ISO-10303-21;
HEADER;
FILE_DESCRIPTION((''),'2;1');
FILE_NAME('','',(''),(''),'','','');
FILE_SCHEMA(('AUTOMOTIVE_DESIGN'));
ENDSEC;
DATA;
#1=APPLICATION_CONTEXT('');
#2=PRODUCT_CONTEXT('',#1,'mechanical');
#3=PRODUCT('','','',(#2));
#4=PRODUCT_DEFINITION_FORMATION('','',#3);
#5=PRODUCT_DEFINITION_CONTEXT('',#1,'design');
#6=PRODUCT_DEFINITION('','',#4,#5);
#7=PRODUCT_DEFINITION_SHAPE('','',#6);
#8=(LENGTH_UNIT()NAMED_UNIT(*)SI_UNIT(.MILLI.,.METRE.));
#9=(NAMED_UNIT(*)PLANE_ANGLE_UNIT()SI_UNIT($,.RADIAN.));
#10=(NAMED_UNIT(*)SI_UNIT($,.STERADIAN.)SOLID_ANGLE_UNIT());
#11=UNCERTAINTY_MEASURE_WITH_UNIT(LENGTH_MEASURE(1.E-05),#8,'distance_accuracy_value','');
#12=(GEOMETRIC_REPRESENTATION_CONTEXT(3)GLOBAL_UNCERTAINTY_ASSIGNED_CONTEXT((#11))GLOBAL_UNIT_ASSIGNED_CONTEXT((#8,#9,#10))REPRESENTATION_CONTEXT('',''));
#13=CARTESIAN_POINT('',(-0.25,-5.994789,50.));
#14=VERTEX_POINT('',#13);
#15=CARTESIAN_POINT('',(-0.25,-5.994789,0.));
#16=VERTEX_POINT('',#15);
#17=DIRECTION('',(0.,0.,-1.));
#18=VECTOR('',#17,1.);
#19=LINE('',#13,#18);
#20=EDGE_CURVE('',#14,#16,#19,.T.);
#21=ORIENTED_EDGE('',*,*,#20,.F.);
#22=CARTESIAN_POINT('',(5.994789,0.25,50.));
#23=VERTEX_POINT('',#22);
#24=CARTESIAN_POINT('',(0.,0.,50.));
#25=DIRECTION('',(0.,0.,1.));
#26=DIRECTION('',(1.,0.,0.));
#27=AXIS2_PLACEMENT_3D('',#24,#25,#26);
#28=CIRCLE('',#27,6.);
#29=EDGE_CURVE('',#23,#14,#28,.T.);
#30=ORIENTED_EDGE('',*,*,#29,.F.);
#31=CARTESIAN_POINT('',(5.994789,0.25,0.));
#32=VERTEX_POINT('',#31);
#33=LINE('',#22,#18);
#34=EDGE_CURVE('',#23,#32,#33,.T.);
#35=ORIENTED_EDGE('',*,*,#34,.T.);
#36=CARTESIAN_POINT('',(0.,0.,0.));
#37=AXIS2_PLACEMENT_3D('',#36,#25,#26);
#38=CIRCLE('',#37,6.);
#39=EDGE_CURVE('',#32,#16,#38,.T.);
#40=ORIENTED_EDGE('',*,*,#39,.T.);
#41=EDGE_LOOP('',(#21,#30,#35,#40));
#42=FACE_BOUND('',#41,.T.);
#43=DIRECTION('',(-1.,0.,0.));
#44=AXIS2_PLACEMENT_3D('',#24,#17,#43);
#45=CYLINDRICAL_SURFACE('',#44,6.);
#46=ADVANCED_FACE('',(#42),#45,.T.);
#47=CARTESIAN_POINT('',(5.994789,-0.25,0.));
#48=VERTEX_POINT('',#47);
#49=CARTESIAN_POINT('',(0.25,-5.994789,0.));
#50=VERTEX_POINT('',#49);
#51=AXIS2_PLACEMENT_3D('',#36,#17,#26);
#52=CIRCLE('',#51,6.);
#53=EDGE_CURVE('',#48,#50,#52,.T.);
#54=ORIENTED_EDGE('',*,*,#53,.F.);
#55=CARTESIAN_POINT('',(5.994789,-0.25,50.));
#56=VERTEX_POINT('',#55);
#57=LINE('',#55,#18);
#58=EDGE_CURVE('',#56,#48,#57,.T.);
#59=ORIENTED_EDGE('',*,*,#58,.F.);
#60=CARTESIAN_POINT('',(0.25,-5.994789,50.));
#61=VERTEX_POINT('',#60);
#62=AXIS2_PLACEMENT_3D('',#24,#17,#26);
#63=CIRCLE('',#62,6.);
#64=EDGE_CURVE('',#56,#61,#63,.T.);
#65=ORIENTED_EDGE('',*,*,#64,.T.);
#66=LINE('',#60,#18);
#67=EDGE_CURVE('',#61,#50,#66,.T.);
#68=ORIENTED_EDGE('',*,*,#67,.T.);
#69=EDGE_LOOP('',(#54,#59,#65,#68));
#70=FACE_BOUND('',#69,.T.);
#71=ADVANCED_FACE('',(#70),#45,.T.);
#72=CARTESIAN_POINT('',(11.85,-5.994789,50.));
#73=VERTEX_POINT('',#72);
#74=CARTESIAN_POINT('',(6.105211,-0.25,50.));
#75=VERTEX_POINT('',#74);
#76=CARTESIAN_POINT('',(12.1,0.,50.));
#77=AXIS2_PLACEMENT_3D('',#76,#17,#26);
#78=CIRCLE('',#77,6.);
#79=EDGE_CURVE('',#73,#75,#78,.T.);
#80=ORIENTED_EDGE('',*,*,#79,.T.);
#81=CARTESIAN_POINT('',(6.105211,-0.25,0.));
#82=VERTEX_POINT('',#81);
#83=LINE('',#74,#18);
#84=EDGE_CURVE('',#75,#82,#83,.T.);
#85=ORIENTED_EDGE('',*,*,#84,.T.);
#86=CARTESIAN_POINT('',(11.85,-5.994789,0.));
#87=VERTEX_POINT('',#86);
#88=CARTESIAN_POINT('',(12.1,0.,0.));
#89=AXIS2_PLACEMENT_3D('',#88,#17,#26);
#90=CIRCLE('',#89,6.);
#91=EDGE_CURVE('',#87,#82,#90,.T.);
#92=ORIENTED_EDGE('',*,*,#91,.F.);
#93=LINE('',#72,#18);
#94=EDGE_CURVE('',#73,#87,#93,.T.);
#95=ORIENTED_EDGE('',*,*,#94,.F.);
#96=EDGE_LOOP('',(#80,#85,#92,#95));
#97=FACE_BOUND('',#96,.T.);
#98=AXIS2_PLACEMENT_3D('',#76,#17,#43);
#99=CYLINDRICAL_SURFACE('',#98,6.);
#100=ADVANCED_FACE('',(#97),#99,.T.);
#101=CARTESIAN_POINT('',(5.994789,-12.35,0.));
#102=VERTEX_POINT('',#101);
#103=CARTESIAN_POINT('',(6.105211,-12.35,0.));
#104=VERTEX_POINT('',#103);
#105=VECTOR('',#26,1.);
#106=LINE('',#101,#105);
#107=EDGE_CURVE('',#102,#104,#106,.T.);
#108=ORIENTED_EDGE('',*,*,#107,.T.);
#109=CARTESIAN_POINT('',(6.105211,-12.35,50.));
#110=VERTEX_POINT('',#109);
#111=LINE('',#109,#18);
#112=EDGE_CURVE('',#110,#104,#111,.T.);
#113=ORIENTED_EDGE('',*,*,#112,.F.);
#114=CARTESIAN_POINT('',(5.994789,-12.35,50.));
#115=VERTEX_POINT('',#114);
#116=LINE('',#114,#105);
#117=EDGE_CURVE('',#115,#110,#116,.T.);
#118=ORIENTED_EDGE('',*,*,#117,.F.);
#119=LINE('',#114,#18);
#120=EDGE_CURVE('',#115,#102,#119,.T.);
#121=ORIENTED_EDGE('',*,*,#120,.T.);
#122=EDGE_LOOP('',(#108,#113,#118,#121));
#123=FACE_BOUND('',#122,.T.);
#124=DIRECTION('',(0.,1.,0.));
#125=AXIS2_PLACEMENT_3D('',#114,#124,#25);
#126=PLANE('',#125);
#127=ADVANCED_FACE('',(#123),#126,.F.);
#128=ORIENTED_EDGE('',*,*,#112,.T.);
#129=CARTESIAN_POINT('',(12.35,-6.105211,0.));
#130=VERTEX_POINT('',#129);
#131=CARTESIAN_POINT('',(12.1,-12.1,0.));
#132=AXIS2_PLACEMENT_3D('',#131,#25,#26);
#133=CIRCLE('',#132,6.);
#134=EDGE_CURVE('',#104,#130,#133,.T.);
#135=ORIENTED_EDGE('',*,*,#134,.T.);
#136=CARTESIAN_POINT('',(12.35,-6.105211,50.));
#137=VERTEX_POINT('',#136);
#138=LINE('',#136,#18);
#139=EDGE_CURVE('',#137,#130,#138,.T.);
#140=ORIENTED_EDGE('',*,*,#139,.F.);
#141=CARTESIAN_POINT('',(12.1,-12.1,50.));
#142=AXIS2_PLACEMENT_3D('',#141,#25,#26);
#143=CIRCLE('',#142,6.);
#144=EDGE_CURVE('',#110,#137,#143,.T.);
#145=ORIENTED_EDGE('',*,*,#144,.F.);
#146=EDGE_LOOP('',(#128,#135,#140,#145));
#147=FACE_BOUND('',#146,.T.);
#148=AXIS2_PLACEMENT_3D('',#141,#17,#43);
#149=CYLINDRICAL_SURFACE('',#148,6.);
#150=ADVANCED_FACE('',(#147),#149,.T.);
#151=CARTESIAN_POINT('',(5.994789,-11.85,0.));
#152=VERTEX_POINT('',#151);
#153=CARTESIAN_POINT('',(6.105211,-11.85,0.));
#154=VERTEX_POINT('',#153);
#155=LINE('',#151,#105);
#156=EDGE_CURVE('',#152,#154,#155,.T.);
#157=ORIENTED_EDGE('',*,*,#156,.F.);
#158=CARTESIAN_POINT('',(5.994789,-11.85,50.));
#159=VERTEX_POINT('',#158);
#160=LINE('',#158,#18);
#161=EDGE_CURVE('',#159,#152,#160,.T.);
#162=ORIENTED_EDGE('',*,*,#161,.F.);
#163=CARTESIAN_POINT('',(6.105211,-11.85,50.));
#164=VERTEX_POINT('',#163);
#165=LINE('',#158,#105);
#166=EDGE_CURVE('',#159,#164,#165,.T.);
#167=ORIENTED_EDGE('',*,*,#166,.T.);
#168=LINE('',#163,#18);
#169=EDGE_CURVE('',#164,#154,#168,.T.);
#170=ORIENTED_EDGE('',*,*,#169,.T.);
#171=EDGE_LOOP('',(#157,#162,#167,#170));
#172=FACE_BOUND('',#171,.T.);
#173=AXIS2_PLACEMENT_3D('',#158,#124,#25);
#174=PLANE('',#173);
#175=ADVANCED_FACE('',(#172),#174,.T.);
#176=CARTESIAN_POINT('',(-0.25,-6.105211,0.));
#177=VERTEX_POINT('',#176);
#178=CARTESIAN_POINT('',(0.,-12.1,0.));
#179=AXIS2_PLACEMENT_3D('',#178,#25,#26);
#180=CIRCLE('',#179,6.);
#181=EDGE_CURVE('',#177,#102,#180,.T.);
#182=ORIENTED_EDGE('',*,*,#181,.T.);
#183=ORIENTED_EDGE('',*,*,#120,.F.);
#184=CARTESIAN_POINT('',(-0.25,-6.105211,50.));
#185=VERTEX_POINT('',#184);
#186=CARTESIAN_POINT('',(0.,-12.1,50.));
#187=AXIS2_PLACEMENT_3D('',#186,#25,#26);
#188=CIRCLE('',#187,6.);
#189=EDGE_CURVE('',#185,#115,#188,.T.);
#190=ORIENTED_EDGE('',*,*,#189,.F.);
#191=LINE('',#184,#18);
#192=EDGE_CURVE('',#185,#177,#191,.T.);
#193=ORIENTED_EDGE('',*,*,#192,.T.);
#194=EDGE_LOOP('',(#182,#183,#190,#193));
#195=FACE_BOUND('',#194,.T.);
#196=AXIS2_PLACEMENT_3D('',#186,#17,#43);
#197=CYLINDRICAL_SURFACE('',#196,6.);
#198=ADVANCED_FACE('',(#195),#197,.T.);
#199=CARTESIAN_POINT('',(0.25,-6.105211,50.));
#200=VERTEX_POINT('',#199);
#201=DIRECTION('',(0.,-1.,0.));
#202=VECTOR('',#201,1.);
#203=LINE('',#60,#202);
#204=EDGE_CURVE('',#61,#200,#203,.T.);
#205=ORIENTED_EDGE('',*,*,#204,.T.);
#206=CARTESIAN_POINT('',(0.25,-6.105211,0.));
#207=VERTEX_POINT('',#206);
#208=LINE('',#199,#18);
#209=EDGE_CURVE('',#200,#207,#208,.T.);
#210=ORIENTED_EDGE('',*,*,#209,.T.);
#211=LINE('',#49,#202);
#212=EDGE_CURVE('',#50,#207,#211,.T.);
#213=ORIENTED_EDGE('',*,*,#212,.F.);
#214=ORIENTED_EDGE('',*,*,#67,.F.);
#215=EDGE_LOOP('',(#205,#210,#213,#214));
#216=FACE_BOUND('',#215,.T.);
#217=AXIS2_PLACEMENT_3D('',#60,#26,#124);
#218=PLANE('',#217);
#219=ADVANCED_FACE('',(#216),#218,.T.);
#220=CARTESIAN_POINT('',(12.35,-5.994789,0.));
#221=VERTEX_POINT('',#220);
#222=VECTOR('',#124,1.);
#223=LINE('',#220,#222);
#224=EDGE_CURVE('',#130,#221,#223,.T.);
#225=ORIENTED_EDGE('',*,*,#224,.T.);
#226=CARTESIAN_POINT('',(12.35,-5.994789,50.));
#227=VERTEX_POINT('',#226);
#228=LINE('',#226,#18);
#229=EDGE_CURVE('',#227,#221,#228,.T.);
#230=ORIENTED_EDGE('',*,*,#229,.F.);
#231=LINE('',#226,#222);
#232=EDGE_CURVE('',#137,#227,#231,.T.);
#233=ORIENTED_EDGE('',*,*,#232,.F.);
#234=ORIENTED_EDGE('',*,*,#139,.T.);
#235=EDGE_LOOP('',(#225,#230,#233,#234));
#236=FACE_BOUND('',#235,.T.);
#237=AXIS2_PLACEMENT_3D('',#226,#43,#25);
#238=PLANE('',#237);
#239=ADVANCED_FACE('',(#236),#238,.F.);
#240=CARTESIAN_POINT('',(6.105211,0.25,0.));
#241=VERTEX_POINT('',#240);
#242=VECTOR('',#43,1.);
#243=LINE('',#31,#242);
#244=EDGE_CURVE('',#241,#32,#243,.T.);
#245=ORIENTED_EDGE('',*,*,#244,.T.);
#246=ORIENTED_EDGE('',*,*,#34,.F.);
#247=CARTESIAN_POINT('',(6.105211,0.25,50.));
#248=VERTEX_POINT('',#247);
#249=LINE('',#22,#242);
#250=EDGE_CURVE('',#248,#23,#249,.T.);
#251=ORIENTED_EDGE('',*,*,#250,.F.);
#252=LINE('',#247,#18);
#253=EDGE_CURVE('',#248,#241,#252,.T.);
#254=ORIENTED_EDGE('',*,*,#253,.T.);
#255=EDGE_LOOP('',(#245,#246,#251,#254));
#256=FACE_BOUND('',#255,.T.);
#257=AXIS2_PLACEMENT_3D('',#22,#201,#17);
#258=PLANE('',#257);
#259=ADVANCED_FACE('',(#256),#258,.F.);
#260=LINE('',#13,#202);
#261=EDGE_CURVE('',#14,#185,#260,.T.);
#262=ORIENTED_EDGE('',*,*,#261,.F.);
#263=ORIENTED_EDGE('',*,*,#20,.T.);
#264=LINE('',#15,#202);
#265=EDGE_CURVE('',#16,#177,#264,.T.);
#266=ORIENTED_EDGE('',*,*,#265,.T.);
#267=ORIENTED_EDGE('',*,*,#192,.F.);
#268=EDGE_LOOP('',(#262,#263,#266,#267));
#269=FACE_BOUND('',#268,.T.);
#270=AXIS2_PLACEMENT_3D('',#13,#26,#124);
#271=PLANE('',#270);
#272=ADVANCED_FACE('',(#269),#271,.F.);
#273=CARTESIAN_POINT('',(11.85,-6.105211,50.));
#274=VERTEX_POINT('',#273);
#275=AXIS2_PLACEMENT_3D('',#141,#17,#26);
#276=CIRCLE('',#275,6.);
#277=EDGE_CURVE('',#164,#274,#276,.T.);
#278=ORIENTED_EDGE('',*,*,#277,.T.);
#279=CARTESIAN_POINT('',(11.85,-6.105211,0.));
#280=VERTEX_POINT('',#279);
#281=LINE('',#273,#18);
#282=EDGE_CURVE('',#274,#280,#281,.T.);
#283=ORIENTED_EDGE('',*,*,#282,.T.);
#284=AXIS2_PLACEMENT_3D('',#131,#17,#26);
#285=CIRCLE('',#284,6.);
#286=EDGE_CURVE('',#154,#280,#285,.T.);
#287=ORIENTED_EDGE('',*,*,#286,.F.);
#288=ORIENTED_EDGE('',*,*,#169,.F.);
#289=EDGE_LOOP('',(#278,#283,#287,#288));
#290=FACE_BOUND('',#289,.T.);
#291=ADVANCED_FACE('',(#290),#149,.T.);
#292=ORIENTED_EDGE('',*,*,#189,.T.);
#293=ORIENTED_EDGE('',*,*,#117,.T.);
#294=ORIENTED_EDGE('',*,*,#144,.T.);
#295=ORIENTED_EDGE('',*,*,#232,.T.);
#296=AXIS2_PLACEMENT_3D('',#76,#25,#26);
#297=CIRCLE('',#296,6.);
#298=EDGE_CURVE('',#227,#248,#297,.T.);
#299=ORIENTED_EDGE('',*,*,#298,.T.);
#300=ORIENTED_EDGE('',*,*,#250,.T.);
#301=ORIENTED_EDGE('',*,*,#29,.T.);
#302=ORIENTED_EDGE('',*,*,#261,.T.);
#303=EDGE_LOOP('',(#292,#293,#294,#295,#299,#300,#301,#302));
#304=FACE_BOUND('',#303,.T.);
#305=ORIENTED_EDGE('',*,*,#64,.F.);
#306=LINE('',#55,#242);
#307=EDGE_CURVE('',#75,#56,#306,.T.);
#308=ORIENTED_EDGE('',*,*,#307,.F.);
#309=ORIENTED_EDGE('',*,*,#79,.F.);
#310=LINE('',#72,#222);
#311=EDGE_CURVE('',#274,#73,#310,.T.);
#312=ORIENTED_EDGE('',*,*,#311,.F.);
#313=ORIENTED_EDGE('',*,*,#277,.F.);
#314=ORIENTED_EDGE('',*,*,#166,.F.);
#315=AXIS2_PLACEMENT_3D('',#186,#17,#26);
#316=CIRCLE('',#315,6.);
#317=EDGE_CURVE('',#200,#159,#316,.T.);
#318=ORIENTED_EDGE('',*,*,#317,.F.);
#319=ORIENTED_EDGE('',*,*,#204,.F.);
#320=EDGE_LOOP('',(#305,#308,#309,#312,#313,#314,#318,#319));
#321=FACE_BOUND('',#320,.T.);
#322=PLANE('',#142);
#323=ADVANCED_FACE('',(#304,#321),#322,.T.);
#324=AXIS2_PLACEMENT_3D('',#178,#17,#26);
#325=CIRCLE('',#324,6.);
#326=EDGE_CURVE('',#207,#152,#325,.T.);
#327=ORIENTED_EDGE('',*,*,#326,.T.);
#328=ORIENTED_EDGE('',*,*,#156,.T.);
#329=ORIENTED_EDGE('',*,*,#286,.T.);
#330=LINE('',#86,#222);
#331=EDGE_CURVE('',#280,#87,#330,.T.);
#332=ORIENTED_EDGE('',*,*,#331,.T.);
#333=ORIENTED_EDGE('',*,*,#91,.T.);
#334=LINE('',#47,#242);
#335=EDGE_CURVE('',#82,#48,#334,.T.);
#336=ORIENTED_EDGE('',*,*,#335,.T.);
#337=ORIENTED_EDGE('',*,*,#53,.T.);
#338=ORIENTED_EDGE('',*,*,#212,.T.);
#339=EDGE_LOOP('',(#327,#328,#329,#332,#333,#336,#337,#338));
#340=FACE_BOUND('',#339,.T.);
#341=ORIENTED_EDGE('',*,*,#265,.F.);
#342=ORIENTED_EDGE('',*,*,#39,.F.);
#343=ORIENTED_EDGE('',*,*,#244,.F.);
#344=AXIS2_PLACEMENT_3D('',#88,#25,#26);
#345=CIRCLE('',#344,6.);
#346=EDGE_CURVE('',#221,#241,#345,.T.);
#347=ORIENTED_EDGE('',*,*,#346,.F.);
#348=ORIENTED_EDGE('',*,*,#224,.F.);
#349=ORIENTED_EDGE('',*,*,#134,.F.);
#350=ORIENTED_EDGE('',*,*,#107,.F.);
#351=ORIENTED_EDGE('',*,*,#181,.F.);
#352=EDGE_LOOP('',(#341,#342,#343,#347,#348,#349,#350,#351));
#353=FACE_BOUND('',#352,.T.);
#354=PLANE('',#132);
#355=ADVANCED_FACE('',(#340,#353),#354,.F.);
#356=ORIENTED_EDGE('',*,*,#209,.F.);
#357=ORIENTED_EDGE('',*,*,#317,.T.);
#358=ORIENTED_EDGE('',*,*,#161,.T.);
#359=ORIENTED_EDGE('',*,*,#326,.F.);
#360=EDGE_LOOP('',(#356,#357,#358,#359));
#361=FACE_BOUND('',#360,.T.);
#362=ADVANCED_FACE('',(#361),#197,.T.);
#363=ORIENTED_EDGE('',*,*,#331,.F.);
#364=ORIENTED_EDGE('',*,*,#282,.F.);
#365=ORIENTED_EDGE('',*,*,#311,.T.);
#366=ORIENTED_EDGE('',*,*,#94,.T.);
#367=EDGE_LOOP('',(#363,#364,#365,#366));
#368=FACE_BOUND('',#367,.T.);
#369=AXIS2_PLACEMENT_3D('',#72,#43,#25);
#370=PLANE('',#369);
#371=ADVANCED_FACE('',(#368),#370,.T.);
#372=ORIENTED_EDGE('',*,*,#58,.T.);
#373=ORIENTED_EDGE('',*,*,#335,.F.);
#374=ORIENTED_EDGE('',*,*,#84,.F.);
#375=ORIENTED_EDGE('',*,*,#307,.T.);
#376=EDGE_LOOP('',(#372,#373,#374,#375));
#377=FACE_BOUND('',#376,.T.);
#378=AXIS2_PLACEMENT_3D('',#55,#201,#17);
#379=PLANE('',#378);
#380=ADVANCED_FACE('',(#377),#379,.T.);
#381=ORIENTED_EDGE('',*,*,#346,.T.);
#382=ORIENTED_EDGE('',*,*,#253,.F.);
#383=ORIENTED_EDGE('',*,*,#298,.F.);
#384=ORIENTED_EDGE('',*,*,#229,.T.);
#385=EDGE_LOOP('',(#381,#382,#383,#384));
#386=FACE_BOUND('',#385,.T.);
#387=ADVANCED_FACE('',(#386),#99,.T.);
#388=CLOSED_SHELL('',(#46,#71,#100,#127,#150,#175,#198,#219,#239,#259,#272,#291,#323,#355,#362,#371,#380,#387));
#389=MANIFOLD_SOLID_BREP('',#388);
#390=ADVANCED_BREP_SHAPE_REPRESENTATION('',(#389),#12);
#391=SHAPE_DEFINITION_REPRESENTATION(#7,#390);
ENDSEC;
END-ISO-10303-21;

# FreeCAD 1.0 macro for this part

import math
import FreeCAD as App
import Part
import Sketcher
from FreeCAD import Vector
Q = App.Units.Quantity

doc = App.newDocument("Part")
body = doc.addObject("PartDesign::Body", "Body")

sketch1 = body.newObject("Sketcher::SketchObject", "Sketch")
sketch1.AttachmentSupport = (doc.getObject("XY_Plane"), [""])
sketch1.MapMode = "FlatFace"
sketch1.addGeometry(Part.LineSegment(Vector(6.11, 0.25, 0), Vector(5.99, 0.25, 0)), False)
sketch1.addGeometry(Part.ArcOfCircle(Part.Circle(Vector(0, 0, 0), Vector(0, 0, 1), 6), math.radians(2), math.radians(268)), False)
sketch1.addGeometry(Part.LineSegment(Vector(-0.25, -5.99, 0), Vector(-0.25, -6.11, 0)), False)
sketch1.addGeometry(Part.ArcOfCircle(Part.Circle(Vector(0, -12.1, 0), Vector(0, 0, 1), 6), math.radians(92), math.radians(358)), False)
sketch1.addGeometry(Part.LineSegment(Vector(5.99, -12.35, 0), Vector(6.11, -12.35, 0)), False)
sketch1.addGeometry(Part.ArcOfCircle(Part.Circle(Vector(12.1, -12.1, 0), Vector(0, 0, 1), 6), math.radians(-178), math.radians(88)), False)
sketch1.addGeometry(Part.LineSegment(Vector(12.35, -6.11, 0), Vector(12.35, -5.99, 0)), False)
sketch1.addGeometry(Part.ArcOfCircle(Part.Circle(Vector(12.1, 0, 0), Vector(0, 0, 1), 6), math.radians(-88), math.radians(178)), False)
sketch1.addGeometry(Part.LineSegment(Vector(5.99, -0.25, 0), Vector(6.11, -0.25, 0)), False)
sketch1.addGeometry(Part.ArcOfCircle(Part.Circle(Vector(12.1, 0, 0), Vector(0, 0, 1), 6), math.radians(-178), math.radians(-92)), False)
sketch1.addGeometry(Part.LineSegment(Vector(11.85, -5.99, 0), Vector(11.85, -6.11, 0)), False)
sketch1.addGeometry(Part.ArcOfCircle(Part.Circle(Vector(12.1, -12.1, 0), Vector(0, 0, 1), 6), math.radians(92), math.radians(178)), False)
sketch1.addGeometry(Part.LineSegment(Vector(6.11, -11.85, 0), Vector(5.99, -11.85, 0)), False)
sketch1.addGeometry(Part.ArcOfCircle(Part.Circle(Vector(0, -12.1, 0), Vector(0, 0, 1), 6), math.radians(2), math.radians(88)), False)
sketch1.addGeometry(Part.LineSegment(Vector(0.25, -6.11, 0), Vector(0.25, -5.99, 0)), False)
sketch1.addGeometry(Part.ArcOfCircle(Part.Circle(Vector(0, 0, 0), Vector(0, 0, 1), 6), math.radians(-88), math.radians(-2)), False)
sketch1.addConstraint(Sketcher.Constraint("Coincident", 0, 2, 1, 1))
sketch1.addConstraint(Sketcher.Constraint("Coincident", 1, 2, 2, 1))
sketch1.addConstraint(Sketcher.Constraint("Coincident", 2, 2, 3, 1))
sketch1.addConstraint(Sketcher.Constraint("Coincident", 3, 2, 4, 1))
sketch1.addConstraint(Sketcher.Constraint("Coincident", 4, 2, 5, 1))
sketch1.addConstraint(Sketcher.Constraint("Coincident", 5, 2, 6, 1))
sketch1.addConstraint(Sketcher.Constraint("Coincident", 6, 2, 7, 1))
sketch1.addConstraint(Sketcher.Constraint("Coincident", 7, 2, 0, 1))
sketch1.addConstraint(Sketcher.Constraint("Coincident", 8, 2, 9, 1))
sketch1.addConstraint(Sketcher.Constraint("Coincident", 9, 2, 10, 1))
sketch1.addConstraint(Sketcher.Constraint("Coincident", 10, 2, 11, 1))
sketch1.addConstraint(Sketcher.Constraint("Coincident", 11, 2, 12, 1))
sketch1.addConstraint(Sketcher.Constraint("Coincident", 12, 2, 13, 1))
sketch1.addConstraint(Sketcher.Constraint("Coincident", 13, 2, 14, 1))
sketch1.addConstraint(Sketcher.Constraint("Coincident", 14, 2, 15, 1))
sketch1.addConstraint(Sketcher.Constraint("Coincident", 15, 2, 8, 1))
sketch1.addConstraint(Sketcher.Constraint("Horizontal", 0))
sketch1.addConstraint(Sketcher.Constraint("Vertical", 2))
sketch1.addConstraint(Sketcher.Constraint("Horizontal", 4))
sketch1.addConstraint(Sketcher.Constraint("Vertical", 6))
sketch1.addConstraint(Sketcher.Constraint("Horizontal", 8))
sketch1.addConstraint(Sketcher.Constraint("Vertical", 10))
sketch1.addConstraint(Sketcher.Constraint("Horizontal", 12))
sketch1.addConstraint(Sketcher.Constraint("Vertical", 14))
sketch1.addConstraint(Sketcher.Constraint("Coincident", 1, 3, -1, 1))
sketch1.addConstraint(Sketcher.Constraint("Coincident", 15, 3, -1, 1))
sketch1.addConstraint(Sketcher.Constraint("Coincident", 9, 3, 7, 3))
sketch1.addConstraint(Sketcher.Constraint("Coincident", 11, 3, 5, 3))
sketch1.addConstraint(Sketcher.Constraint("Coincident", 13, 3, 3, 3))
sketch1.addConstraint(Sketcher.Constraint("Equal", 1, 3))
sketch1.addConstraint(Sketcher.Constraint("Equal", 3, 5))
sketch1.addConstraint(Sketcher.Constraint("Equal", 5, 7))
sketch1.addConstraint(Sketcher.Constraint("Equal", 7, 9))
sketch1.addConstraint(Sketcher.Constraint("Equal", 9, 11))
sketch1.addConstraint(Sketcher.Constraint("Equal", 11, 13))
sketch1.addConstraint(Sketcher.Constraint("Equal", 13, 15))
sketch1.addConstraint(Sketcher.Constraint("Symmetric", 2, 2, 13, 2, -2))
sketch1.addConstraint(Sketcher.Constraint("Symmetric", 7, 2, 8, 2, -1))
sketch1.addConstraint(Sketcher.Constraint("Horizontal", 3, 3, 5, 3))
sketch1.addConstraint(Sketcher.Constraint("Horizontal", 2, 2, 5, 2))
sketch1.addConstraint(Sketcher.Constraint("Horizontal", 1, 2, 6, 2))
sketch1.addConstraint(Sketcher.Constraint("Horizontal", 6, 2, 9, 2))
sketch1.addConstraint(Sketcher.Constraint("Vertical", 0, 2, 3, 2))
sketch1.addConstraint(Sketcher.Constraint("Vertical", 8, 2, 11, 2))
sketch1.addConstraint(Sketcher.Constraint("Equal", 12, 2))
sketch1.addConstraint(Sketcher.Constraint("Radius", 1, Q("6 mm")))
sketch1.addConstraint(Sketcher.Constraint("DistanceY", 3, 3, -1, 1, Q("12.1 mm")))
sketch1.addConstraint(Sketcher.Constraint("DistanceX", -1, 1, 5, 3, Q("12.1 mm")))
sketch1.addConstraint(Sketcher.Constraint("DistanceY", 8, 2, 7, 2, Q("0.5 mm")))
pad1 = body.newObject("PartDesign::Pad", "Pad")
pad1.Profile = sketch1
pad1.Length = 50

doc.recompute()
